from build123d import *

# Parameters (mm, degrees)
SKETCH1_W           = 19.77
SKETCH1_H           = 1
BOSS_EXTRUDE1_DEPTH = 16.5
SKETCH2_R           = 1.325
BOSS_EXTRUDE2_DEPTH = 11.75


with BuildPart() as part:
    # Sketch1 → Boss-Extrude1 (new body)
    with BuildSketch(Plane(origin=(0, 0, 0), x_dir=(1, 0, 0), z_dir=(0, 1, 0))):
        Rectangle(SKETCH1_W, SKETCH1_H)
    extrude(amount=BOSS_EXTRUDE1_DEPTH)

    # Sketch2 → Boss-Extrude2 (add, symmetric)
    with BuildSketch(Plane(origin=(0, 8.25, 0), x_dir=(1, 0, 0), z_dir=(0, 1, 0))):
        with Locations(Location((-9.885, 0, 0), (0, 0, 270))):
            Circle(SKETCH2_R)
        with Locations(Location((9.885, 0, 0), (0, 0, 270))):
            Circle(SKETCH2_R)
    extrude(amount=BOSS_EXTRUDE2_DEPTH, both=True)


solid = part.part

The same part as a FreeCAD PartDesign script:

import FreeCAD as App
import Part
import Sketcher
Q = App.Units.Quantity


def add_polygon(sketch, points):
    """Adds a closed chain of lines whose ends are joined by coincident constraints."""
    first, n = sketch.GeometryCount, len(points)
    for a, b in zip(points, points[1:] + points[:1]):
        sketch.addGeometry(Part.LineSegment(App.Vector(*a, 0), App.Vector(*b, 0)), False)
    for i in range(n):
        sketch.addConstraint(Sketcher.Constraint("Coincident", first + i, 2, first + (i + 1) % n, 1))

doc = App.newDocument("Part")
body = doc.addObject("PartDesign::Body", "Body")

# Sketch on XZ plane
sketch1 = body.newObject("Sketcher::SketchObject", "Sketch")
sketch1.AttachmentSupport = (doc.getObject("XZ_Plane"), [""])
sketch1.MapMode = "FlatFace"
add_polygon(sketch1, [(-9.885, -0.5), (-9.885, 0.5), (9.885, 0.5), (9.885, -0.5)])  # lines 0-3
sketch1.addConstraint(Sketcher.Constraint("Vertical", 0))
sketch1.addConstraint(Sketcher.Constraint("Horizontal", 1))
sketch1.addConstraint(Sketcher.Constraint("Vertical", 2))
sketch1.addConstraint(Sketcher.Constraint("Horizontal", 3))
sketch1.addConstraint(Sketcher.Constraint("Symmetric", 0, 2, 2, 2, -1, 1))
sketch1.addConstraint(Sketcher.Constraint("DistanceY", 0, 1, 0, 2, Q("1 mm")))
sketch1.addConstraint(Sketcher.Constraint("DistanceX", 1, 1, 1, 2, Q("19.77 mm")))
pad1 = body.newObject("PartDesign::Pad", "Pad")
pad1.Profile = sketch1
pad1.Length = 16.5
pad1.Reversed = True

# Sketch on XZ plane
sketch2 = body.newObject("Sketcher::SketchObject", "Sketch001")
sketch2.AttachmentSupport = (doc.getObject("XZ_Plane"), [""])
sketch2.MapMode = "FlatFace"
sketch2.AttachmentOffset = App.Placement(App.Vector(0, 0, -8.25), App.Rotation())
sketch2.addGeometry(Part.Circle(App.Vector(-9.885, 0, 0), App.Vector(0, 0, 1), 1.325), False)
sketch2.addGeometry(Part.Circle(App.Vector(9.885, 0, 0), App.Vector(0, 0, 1), 1.325), False)
sketch2.addConstraint(Sketcher.Constraint("Equal", 0, 1))
sketch2.addConstraint(Sketcher.Constraint("Symmetric", 0, 3, 1, 3, -1, 1))
sketch2.addConstraint(Sketcher.Constraint("PointOnObject", 0, 3, -1))
sketch2.addConstraint(Sketcher.Constraint("Diameter", 0, Q("2.65 mm")))
sketch2.addConstraint(Sketcher.Constraint("DistanceX", 0, 3, 1, 3, Q("19.77 mm")))
pad2 = body.newObject("PartDesign::Pad", "Pad001")
pad2.Profile = sketch2
pad2.Length = 23.5
pad2.Midplane = True

doc.recompute()
